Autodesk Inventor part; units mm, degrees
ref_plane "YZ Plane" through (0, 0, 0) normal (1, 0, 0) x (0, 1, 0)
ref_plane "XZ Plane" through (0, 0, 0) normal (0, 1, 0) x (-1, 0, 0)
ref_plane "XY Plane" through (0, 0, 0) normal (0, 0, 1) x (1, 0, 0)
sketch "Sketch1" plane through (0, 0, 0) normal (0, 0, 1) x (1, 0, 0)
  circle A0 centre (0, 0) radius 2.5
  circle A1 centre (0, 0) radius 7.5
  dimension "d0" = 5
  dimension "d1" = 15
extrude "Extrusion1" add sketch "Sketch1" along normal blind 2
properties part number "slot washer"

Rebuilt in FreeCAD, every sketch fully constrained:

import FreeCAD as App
import Part
import Sketcher

doc = App.newDocument("Part")
body = doc.addObject("PartDesign::Body", "Body")

sketch1 = body.newObject("Sketcher::SketchObject", "Sketch")
sketch1.AttachmentSupport = (doc.getObject("XY_Plane"), [""])
sketch1.MapMode = "FlatFace"
sketch1.addGeometry([
    Part.Circle(App.Vector(0, 0, 0), App.Vector(0, 0, 1), 7.5),
    Part.Circle(App.Vector(0, 0, 0), App.Vector(0, 0, 1), 2.5),
], False)
sketch1.addConstraint([
    Sketcher.Constraint("Coincident", 0, 3, -1, 1),
    Sketcher.Constraint("Coincident", 1, 3, -1, 1),
    Sketcher.Constraint("Diameter", 0, 15.0),
    Sketcher.Constraint("Diameter", 1, 5.0),
])
pad1 = body.newObject("PartDesign::Pad", "Pad")
pad1.Profile = sketch1
pad1.Length = 2

doc.recompute()
